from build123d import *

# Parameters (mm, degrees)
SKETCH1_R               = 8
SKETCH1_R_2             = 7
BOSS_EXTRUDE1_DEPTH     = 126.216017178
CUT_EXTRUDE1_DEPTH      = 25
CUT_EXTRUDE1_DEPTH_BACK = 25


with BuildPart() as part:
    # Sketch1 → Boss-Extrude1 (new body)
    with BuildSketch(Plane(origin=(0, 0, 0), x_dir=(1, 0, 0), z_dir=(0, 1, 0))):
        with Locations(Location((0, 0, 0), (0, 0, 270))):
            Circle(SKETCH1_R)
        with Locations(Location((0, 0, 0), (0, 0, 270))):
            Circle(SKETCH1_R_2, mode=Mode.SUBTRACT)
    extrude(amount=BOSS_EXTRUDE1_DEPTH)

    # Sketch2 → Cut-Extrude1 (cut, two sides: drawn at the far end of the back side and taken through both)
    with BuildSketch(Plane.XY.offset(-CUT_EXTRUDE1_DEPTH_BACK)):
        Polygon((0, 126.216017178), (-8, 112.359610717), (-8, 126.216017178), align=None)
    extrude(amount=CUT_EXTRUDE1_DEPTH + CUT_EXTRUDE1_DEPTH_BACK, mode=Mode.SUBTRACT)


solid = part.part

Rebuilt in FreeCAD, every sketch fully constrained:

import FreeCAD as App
import Part
import Sketcher
Q = App.Units.Quantity

doc = App.newDocument("Part")
body = doc.addObject("PartDesign::Body", "Body")

sketch1 = body.newObject("Sketcher::SketchObject", "Sketch")
sketch1.AttachmentSupport = (doc.getObject("XZ_Plane"), [""])
sketch1.MapMode = "FlatFace"
sketch1.addGeometry([
    Part.Circle(App.Vector(0, 0, 0), App.Vector(0, 0, 1), 8),
    Part.Circle(App.Vector(0, 0, 0), App.Vector(0, 0, 1), 7),
], False)
sketch1.addConstraint([
    Sketcher.Constraint("Coincident", 0, 3, -1, 1),
    Sketcher.Constraint("Coincident", 1, 3, -1, 1),
    Sketcher.Constraint("Diameter", 0, Q("16 mm")),
    Sketcher.Constraint("Diameter", 1, Q("14 mm")),
])
pad1 = body.newObject("PartDesign::Pad", "Pad")
pad1.Profile = sketch1
pad1.Length = 126.216017
pad1.Reversed = True

sketch2 = body.newObject("Sketcher::SketchObject", "Sketch001")
sketch2.AttachmentSupport = (doc.getObject("XY_Plane"), [""])
sketch2.MapMode = "FlatFace"
sketch2.addGeometry([
    Part.LineSegment(App.Vector(-8, 112, 0), App.Vector(0, 126, 0)),
    Part.LineSegment(App.Vector(0, 126, 0), App.Vector(-8, 126, 0)),
    Part.LineSegment(App.Vector(-8, 126, 0), App.Vector(-8, 112, 0)),
], False)
sketch2.addConstraint([
    Sketcher.Constraint("Coincident", 0, 2, 1, 1),
    Sketcher.Constraint("Coincident", 1, 2, 2, 1),
    Sketcher.Constraint("Coincident", 2, 2, 0, 1),
    Sketcher.Constraint("Horizontal", 1),
    Sketcher.Constraint("Vertical", 2),
    Sketcher.Constraint("PointOnObject", 0, 2, -2),
    Sketcher.Constraint("DistanceX", 1, 2, 1, 1, Q("8 mm")),
    Sketcher.Constraint("Angle", 0, Q("60 deg")),
    Sketcher.Constraint("DistanceY", -1, 1, 2, 2, Q("112.359611 mm")),
])
pocket1 = body.newObject("PartDesign::Pocket", "Pocket")
pocket1.Profile = sketch2
pocket1.Type = "ThroughAll"
pocket1.Midplane = True

doc.recompute()
